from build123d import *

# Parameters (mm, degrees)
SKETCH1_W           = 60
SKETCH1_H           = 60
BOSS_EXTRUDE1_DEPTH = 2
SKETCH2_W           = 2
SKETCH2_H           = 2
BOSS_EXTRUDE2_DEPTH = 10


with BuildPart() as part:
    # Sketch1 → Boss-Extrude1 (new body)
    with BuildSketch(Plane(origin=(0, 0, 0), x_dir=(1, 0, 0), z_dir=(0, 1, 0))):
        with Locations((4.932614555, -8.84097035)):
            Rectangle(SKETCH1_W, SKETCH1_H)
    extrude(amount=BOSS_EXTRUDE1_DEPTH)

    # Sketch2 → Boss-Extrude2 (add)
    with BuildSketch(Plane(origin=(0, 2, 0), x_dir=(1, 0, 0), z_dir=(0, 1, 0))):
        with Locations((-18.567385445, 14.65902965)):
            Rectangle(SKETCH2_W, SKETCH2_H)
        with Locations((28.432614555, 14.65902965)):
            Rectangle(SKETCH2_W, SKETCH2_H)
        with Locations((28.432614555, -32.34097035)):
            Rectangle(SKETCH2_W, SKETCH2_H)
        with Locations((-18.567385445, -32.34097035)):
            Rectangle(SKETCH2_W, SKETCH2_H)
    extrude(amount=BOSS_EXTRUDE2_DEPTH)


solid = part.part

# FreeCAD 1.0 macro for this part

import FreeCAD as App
import Part
import Sketcher
from FreeCAD import Vector
Q = App.Units.Quantity


def add_polygon(sketch, points):
    """Adds a closed chain of lines whose ends are joined by coincident constraints."""
    first, n = sketch.GeometryCount, len(points)
    for a, b in zip(points, points[1:] + points[:1]):
        sketch.addGeometry(Part.LineSegment(App.Vector(*a, 0), App.Vector(*b, 0)), False)
    for i in range(n):
        sketch.addConstraint(Sketcher.Constraint("Coincident", first + i, 2, first + (i + 1) % n, 1))

doc = App.newDocument("Part")
body = doc.addObject("PartDesign::Body", "Body")

# Sketch on XZ plane
sketch1 = body.newObject("Sketcher::SketchObject", "Sketch")
sketch1.AttachmentSupport = (doc.getObject("XZ_Plane"), [""])
sketch1.MapMode = "FlatFace"
add_polygon(sketch1, [(-25.067385, -21.15903), (-25.067385, 38.84097), (34.932615, 38.84097), (34.932615, -21.15903)])  # lines 0-3
sketch1.addConstraint([
    Sketcher.Constraint("Vertical", 0),
    Sketcher.Constraint("Horizontal", 1),
    Sketcher.Constraint("Vertical", 2),
    Sketcher.Constraint("Horizontal", 3),
    Sketcher.Constraint("Equal", 3, 0),
    Sketcher.Constraint("DistanceX", 1, 1, 1, 2, Q("60 mm")),
    Sketcher.Constraint("DistanceY", -1, 1, 0, 2, Q("38.84097 mm")),
    Sketcher.Constraint("DistanceX", 0, 2, -1, 1, Q("25.067385 mm")),
])
pad1 = body.newObject("PartDesign::Pad", "Pad")
pad1.Profile = sketch1
pad1.Length = 2
pad1.Reversed = True

# Sketch on XZ plane
sketch2 = body.newObject("Sketcher::SketchObject", "Sketch001")
sketch2.AttachmentSupport = (doc.getObject("XZ_Plane"), [""])
sketch2.MapMode = "FlatFace"
sketch2.AttachmentOffset = App.Placement(Vector(0, 0, -2), App.Rotation())
add_polygon(sketch2, [(-19.567385, -15.65903), (-19.567385, -13.65903), (-17.567385, -13.65903), (-17.567385, -15.65903)])  # lines 0-3
add_polygon(sketch2, [(27.432615, -15.65903), (27.432615, -13.65903), (29.432615, -13.65903), (29.432615, -15.65903)])  # lines 4-7
add_polygon(sketch2, [(27.432615, 31.34097), (27.432615, 33.34097), (29.432615, 33.34097), (29.432615, 31.34097)])  # lines 8-11
add_polygon(sketch2, [(-19.567385, 31.34097), (-19.567385, 33.34097), (-17.567385, 33.34097), (-17.567385, 31.34097)])  # lines 12-15
sketch2.addConstraint([
    Sketcher.Constraint("Vertical", 0),
    Sketcher.Constraint("Horizontal", 1),
    Sketcher.Constraint("Vertical", 2),
    Sketcher.Constraint("Horizontal", 3),
    Sketcher.Constraint("Vertical", 4),
    Sketcher.Constraint("Horizontal", 5),
    Sketcher.Constraint("Vertical", 6),
    Sketcher.Constraint("Horizontal", 7),
    Sketcher.Constraint("Vertical", 8),
    Sketcher.Constraint("Horizontal", 9),
    Sketcher.Constraint("Vertical", 10),
    Sketcher.Constraint("Horizontal", 11),
    Sketcher.Constraint("Vertical", 12),
    Sketcher.Constraint("Horizontal", 13),
    Sketcher.Constraint("Vertical", 14),
    Sketcher.Constraint("Horizontal", 15),
    Sketcher.Constraint("Horizontal", 1, 2, 4, 2),
    Sketcher.Constraint("Horizontal", 3, 2, 6, 2),
    Sketcher.Constraint("Horizontal", 9, 2, 12, 2),
    Sketcher.Constraint("Horizontal", 11, 2, 14, 2),
    Sketcher.Constraint("Vertical", 7, 2, 8, 2),
    Sketcher.Constraint("Vertical", 6, 2, 9, 2),
    Sketcher.Constraint("Vertical", 3, 2, 12, 2),
    Sketcher.Constraint("Vertical", 2, 2, 13, 2),
    Sketcher.Constraint("Equal", 3, 5),
    Sketcher.Constraint("Equal", 15, 0),
    Sketcher.Constraint("Equal", 6, 8),
    Sketcher.Constraint("DistanceX", 1, 1, 1, 2, Q("2 mm")),
    Sketcher.Constraint("DistanceX", 1, 2, 4, 2, Q("45 mm")),
    Sketcher.Constraint("DistanceY", 4, 2, 8, 2, Q("47 mm")),
    Sketcher.Constraint("DistanceY", 0, 2, -1, 1, Q("13.65903 mm")),
    Sketcher.Constraint("DistanceX", 0, 2, -1, 1, Q("19.567385 mm")),
])
pad2 = body.newObject("PartDesign::Pad", "Pad001")
pad2.Profile = sketch2
pad2.Length = 10
pad2.Reversed = True

doc.recompute()
